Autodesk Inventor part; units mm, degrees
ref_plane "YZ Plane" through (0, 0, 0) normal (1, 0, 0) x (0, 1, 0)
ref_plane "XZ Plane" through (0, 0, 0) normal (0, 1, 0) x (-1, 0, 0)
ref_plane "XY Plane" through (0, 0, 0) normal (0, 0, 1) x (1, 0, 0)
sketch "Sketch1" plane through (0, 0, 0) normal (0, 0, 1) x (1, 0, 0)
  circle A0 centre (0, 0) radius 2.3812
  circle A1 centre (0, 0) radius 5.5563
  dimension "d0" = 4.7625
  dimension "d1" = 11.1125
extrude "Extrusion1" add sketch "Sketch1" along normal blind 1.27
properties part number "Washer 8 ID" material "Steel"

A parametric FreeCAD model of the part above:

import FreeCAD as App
import Part
import Sketcher
Q = App.Units.Quantity

doc = App.newDocument("Part")
params = doc.addObject("Spreadsheet::Sheet", "Params")
for row, (alias, value) in enumerate([
    ("sketch1_diameter", "0.4375 in"),
    ("sketch1_diameter2", "0.1875 in"),
    ("pad1_length", "0.05 in"),
], start=1):
    params.set(f"A{row}", alias)
    params.set(f"B{row}", "=" + value)
    params.setAlias(f"B{row}", alias)

body = doc.addObject("PartDesign::Body", "Body")

sketch1 = body.newObject("Sketcher::SketchObject", "Sketch")
sketch1.AttachmentSupport = (doc.getObject("XY_Plane"), [""])
sketch1.MapMode = "FlatFace"
sketch1.addGeometry(Part.Circle(App.Vector(0, 0, 0), App.Vector(0, 0, 1), 5.6), False)
sketch1.addGeometry(Part.Circle(App.Vector(0, 0, 0), App.Vector(0, 0, 1), 2.4), False)
sketch1.addConstraint(Sketcher.Constraint("Coincident", 0, 3, -1, 1))
sketch1.addConstraint(Sketcher.Constraint("Coincident", 1, 3, -1, 1))
sketch1.addConstraint(Sketcher.Constraint("Diameter", 0, Q("0.4375 in")))
sketch1.addConstraint(Sketcher.Constraint("Diameter", 1, Q("0.1875 in")))
sketch1.setExpression("Constraints[2]", "Params.sketch1_diameter")
sketch1.setExpression("Constraints[3]", "Params.sketch1_diameter2")
pad1 = body.newObject("PartDesign::Pad", "Pad")
pad1.Profile = sketch1
pad1.setExpression("Length", "Params.pad1_length")

doc.recompute()
